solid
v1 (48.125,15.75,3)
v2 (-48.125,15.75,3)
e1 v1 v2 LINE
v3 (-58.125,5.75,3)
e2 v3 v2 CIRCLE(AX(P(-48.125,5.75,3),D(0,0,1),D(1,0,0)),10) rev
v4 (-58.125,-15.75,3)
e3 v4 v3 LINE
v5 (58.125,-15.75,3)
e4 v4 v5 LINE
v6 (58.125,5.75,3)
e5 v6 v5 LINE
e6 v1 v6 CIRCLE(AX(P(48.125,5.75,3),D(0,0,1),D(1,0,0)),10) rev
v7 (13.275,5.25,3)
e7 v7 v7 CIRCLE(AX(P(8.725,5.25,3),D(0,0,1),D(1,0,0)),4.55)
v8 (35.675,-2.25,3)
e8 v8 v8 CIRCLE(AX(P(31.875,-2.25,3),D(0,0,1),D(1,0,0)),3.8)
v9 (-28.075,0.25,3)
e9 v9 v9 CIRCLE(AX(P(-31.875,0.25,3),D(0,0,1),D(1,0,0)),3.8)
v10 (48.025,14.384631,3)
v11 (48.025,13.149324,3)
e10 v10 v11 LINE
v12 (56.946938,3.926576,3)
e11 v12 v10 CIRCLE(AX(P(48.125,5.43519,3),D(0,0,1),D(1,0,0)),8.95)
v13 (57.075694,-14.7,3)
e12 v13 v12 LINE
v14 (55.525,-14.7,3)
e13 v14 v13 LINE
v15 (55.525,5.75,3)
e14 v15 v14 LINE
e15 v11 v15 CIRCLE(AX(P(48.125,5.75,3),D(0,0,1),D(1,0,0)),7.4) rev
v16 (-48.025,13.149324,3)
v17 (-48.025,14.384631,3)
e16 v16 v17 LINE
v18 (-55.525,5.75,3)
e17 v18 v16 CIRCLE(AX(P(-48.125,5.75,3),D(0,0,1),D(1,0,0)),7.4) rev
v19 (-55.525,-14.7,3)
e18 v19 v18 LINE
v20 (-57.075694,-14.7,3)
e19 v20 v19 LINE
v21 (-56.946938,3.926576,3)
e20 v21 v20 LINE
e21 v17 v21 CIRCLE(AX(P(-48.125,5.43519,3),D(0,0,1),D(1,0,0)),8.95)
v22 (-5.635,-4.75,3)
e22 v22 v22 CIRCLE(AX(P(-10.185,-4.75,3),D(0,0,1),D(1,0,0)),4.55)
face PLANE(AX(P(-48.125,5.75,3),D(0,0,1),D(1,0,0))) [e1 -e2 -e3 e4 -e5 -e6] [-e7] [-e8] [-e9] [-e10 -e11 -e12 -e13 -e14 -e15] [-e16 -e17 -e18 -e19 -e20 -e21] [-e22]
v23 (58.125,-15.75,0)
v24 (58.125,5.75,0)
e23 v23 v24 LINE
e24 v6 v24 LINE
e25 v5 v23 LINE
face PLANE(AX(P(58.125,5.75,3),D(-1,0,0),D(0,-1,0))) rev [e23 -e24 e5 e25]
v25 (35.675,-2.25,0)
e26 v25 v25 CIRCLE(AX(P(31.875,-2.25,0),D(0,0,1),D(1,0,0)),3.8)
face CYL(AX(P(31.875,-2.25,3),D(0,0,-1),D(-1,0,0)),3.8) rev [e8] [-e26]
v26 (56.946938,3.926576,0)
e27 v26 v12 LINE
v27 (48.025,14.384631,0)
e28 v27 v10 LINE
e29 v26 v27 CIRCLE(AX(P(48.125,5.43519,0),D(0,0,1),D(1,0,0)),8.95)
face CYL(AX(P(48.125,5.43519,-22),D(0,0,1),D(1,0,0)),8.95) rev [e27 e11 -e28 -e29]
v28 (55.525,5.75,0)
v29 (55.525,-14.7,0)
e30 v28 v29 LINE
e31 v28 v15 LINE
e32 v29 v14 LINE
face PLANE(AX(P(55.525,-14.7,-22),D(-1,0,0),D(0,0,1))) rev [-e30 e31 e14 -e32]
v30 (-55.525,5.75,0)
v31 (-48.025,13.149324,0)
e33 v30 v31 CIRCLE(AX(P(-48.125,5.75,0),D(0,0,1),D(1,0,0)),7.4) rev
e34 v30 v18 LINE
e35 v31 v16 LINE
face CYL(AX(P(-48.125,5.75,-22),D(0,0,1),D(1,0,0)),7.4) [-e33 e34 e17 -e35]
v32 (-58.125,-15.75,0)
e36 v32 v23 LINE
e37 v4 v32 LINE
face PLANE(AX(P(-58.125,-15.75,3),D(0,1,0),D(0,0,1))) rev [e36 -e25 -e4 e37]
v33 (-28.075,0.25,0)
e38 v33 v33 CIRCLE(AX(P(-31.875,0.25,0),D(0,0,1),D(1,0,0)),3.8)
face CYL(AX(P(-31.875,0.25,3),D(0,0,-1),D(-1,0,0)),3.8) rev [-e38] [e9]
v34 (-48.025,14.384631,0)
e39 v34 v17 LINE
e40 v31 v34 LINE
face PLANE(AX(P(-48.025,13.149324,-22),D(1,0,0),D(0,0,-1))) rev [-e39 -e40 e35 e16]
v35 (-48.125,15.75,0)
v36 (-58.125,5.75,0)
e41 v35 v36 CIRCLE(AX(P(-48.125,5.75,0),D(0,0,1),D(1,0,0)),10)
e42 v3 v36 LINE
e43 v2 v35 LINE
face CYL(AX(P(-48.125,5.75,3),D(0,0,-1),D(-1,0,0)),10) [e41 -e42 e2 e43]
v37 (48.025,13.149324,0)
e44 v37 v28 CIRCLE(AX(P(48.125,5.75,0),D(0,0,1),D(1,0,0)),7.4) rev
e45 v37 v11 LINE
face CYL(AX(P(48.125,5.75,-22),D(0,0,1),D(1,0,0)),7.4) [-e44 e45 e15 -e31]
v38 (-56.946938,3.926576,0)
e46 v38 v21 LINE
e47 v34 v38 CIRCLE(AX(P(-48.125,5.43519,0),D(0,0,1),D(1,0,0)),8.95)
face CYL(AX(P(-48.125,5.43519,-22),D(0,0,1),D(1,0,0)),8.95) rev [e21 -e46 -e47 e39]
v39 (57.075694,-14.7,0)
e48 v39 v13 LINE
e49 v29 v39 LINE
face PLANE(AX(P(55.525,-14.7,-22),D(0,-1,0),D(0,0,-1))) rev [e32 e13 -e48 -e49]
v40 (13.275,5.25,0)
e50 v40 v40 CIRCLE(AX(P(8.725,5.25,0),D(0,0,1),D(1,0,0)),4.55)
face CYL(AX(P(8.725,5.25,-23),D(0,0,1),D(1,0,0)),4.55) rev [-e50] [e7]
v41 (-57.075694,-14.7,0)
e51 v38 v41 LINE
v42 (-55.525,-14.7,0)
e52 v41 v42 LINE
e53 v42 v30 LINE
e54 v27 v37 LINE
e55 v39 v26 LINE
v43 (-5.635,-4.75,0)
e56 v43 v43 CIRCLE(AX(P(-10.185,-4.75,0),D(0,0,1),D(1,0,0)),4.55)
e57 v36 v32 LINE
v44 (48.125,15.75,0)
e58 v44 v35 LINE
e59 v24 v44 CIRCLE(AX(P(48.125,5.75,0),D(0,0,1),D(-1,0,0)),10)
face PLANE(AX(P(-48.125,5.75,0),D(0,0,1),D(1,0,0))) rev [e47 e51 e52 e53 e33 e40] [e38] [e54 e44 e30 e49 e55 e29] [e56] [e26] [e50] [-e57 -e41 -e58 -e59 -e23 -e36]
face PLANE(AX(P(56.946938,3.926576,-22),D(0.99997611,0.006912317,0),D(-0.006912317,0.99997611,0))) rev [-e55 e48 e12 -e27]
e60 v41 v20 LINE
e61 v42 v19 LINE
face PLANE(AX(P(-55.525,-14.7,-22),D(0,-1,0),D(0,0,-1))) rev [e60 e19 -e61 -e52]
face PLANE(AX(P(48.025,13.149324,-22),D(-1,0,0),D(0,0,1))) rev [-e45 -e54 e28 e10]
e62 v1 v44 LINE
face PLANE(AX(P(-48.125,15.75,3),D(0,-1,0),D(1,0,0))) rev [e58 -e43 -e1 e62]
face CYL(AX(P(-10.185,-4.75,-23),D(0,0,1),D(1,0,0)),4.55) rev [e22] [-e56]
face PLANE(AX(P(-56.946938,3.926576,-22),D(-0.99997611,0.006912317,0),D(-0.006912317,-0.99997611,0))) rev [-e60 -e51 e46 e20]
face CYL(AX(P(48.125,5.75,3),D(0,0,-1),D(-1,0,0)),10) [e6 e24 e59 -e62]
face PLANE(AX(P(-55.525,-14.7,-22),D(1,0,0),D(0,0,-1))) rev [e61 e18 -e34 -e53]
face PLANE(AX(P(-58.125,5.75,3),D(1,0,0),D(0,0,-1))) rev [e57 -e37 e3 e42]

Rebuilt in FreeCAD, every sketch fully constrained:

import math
import FreeCAD as App
import Part
import Sketcher
Q = App.Units.Quantity

doc = App.newDocument("Part")
body = doc.addObject("PartDesign::Body", "Body")

# Sketch on XY plane
sketch1 = body.newObject("Sketcher::SketchObject", "Sketch")
sketch1.AttachmentSupport = (doc.getObject("XY_Plane"), [""])
sketch1.MapMode = "FlatFace"
sketch1.addGeometry(Part.LineSegment(App.Vector(48.125, 15.75, 0), App.Vector(-48.125, 15.75, 0)), False)
sketch1.addGeometry(Part.ArcOfCircle(Part.Circle(App.Vector(-48.125, 5.75, 0), App.Vector(0, 0, 1), 10), math.radians(90), math.radians(180)), False)
sketch1.addGeometry(Part.LineSegment(App.Vector(-58.125, 5.75, 0), App.Vector(-58.125, -15.75, 0)), False)
sketch1.addGeometry(Part.LineSegment(App.Vector(-58.125, -15.75, 0), App.Vector(58.125, -15.75, 0)), False)
sketch1.addGeometry(Part.LineSegment(App.Vector(58.125, -15.75, 0), App.Vector(58.125, 5.75, 0)), False)
sketch1.addGeometry(Part.ArcOfCircle(Part.Circle(App.Vector(48.125, 5.75, 0), App.Vector(0, 0, 1), 10), math.radians(0), math.radians(90)), False)
sketch1.addGeometry(Part.Circle(App.Vector(31.875, -2.25, 0), App.Vector(0, 0, 1), 3.8), False)
sketch1.addGeometry(Part.Circle(App.Vector(-31.875, 0.25, 0), App.Vector(0, 0, 1), 3.8), False)
sketch1.addConstraint(Sketcher.Constraint("Tangent", 0, 2, 1, 1))
sketch1.addConstraint(Sketcher.Constraint("Tangent", 1, 2, 2, 1))
sketch1.addConstraint(Sketcher.Constraint("Coincident", 2, 2, 3, 1))
sketch1.addConstraint(Sketcher.Constraint("Coincident", 3, 2, 4, 1))
sketch1.addConstraint(Sketcher.Constraint("Tangent", 4, 2, 5, 1))
sketch1.addConstraint(Sketcher.Constraint("Tangent", 5, 2, 0, 1))
sketch1.addConstraint(Sketcher.Constraint("Horizontal", 0))
sketch1.addConstraint(Sketcher.Constraint("Vertical", 2))
sketch1.addConstraint(Sketcher.Constraint("Horizontal", 3))
sketch1.addConstraint(Sketcher.Constraint("Vertical", 4))
sketch1.addConstraint(Sketcher.Constraint("Equal", 1, 5))
sketch1.addConstraint(Sketcher.Constraint("Equal", 6, 7))
sketch1.addConstraint(Sketcher.Constraint("Radius", 1, Q("10 mm")))
sketch1.addConstraint(Sketcher.Constraint("Diameter", 6, Q("7.6 mm")))
sketch1.addConstraint(Sketcher.Constraint("DistanceY", 2, 2, 2, 1, Q("21.5 mm")))
sketch1.addConstraint(Sketcher.Constraint("DistanceY", 6, 3, 5, 3, Q("8 mm")))
sketch1.addConstraint(Sketcher.Constraint("DistanceX", 1, 3, 6, 3, Q("80 mm")))
sketch1.addConstraint(Sketcher.Constraint("DistanceX", 7, 3, 5, 3, Q("80 mm")))
sketch1.addConstraint(Sketcher.Constraint("DistanceY", 2, 2, 7, 3, Q("16 mm")))
sketch1.addConstraint(Sketcher.Constraint("DistanceX", 0, 2, 0, 1, Q("96.25 mm")))
sketch1.addConstraint(Sketcher.Constraint("DistanceY", -1, 1, 1, 3, Q("5.75 mm")))
sketch1.addConstraint(Sketcher.Constraint("DistanceX", 1, 3, -1, 1, Q("48.125 mm")))
pad1 = body.newObject("PartDesign::Pad", "Pad")
pad1.Profile = sketch1
pad1.Length = 3

# Sketch on XY plane
sketch2 = body.newObject("Sketcher::SketchObject", "Sketch001")
sketch2.AttachmentSupport = (doc.getObject("XY_Plane"), [""])
sketch2.MapMode = "FlatFace"
sketch2.AttachmentOffset = App.Placement(App.Vector(0, 0, 3), App.Rotation())
sketch2.addGeometry(Part.Circle(App.Vector(8.725, 5.25, 0), App.Vector(0, 0, 1), 4.4), False)
sketch2.addGeometry(Part.Circle(App.Vector(-10.185, -4.75, 0), App.Vector(0, 0, 1), 4.4), False)
sketch2.addGeometry(Part.LineSegment(App.Vector(55.625, 5.75, 0), App.Vector(55.625, -15.75, 0)), False)
sketch2.addGeometry(Part.LineSegment(App.Vector(55.625, -15.75, 0), App.Vector(58.125, -15.75, 0)), False)
sketch2.addGeometry(Part.LineSegment(App.Vector(58.125, -15.75, 0), App.Vector(58.125, 5.75, 0)), False)
sketch2.addGeometry(Part.ArcOfCircle(Part.Circle(App.Vector(48.125, 5.75, 0), App.Vector(0, 0, 1), 10), math.radians(0), math.radians(90)), False)
sketch2.addGeometry(Part.LineSegment(App.Vector(48.125, 15.75, 0), App.Vector(48.125, 13.25, 0)), False)
sketch2.addGeometry(Part.ArcOfCircle(Part.Circle(App.Vector(48.125, 5.75, 0), App.Vector(0, 0, 1), 7.5), math.radians(0), math.radians(90)), False)
sketch2.addGeometry(Part.LineSegment(App.Vector(-58.125, -15.75, 0), App.Vector(-55.625, -15.75, 0)), False)
sketch2.addGeometry(Part.LineSegment(App.Vector(-55.625, -15.75, 0), App.Vector(-55.625, 5.75, 0)), False)
sketch2.addGeometry(Part.ArcOfCircle(Part.Circle(App.Vector(-48.125, 5.75, 0), App.Vector(0, 0, 1), 7.5), math.radians(90), math.radians(180)), False)
sketch2.addGeometry(Part.LineSegment(App.Vector(-48.125, 13.25, 0), App.Vector(-48.125, 15.75, 0)), False)
sketch2.addGeometry(Part.ArcOfCircle(Part.Circle(App.Vector(-48.125, 5.75, 0), App.Vector(0, 0, 1), 10), math.radians(90), math.radians(180)), False)
sketch2.addGeometry(Part.LineSegment(App.Vector(-58.125, 5.75, 0), App.Vector(-58.125, -15.75, 0)), False)
sketch2.addConstraint(Sketcher.Constraint("Coincident", 2, 2, 3, 1))
sketch2.addConstraint(Sketcher.Constraint("Coincident", 3, 2, 4, 1))
sketch2.addConstraint(Sketcher.Constraint("Tangent", 4, 2, 5, 1))
sketch2.addConstraint(Sketcher.Constraint("Coincident", 5, 2, 6, 1))
sketch2.addConstraint(Sketcher.Constraint("Coincident", 6, 2, 7, 2))
sketch2.addConstraint(Sketcher.Constraint("Tangent", 7, 1, 2, 1))
sketch2.addConstraint(Sketcher.Constraint("Coincident", 8, 2, 9, 1))
sketch2.addConstraint(Sketcher.Constraint("Tangent", 9, 2, 10, 2))
sketch2.addConstraint(Sketcher.Constraint("Coincident", 10, 1, 11, 1))
sketch2.addConstraint(Sketcher.Constraint("Coincident", 11, 2, 12, 1))
sketch2.addConstraint(Sketcher.Constraint("Tangent", 12, 2, 13, 1))
sketch2.addConstraint(Sketcher.Constraint("Coincident", 13, 2, 8, 1))
sketch2.addConstraint(Sketcher.Constraint("Vertical", 2))
sketch2.addConstraint(Sketcher.Constraint("Horizontal", 3))
sketch2.addConstraint(Sketcher.Constraint("Vertical", 4))
sketch2.addConstraint(Sketcher.Constraint("Vertical", 6))
sketch2.addConstraint(Sketcher.Constraint("Horizontal", 8))
sketch2.addConstraint(Sketcher.Constraint("Vertical", 9))
sketch2.addConstraint(Sketcher.Constraint("Vertical", 11))
sketch2.addConstraint(Sketcher.Constraint("Vertical", 13))
sketch2.addConstraint(Sketcher.Constraint("Coincident", 7, 3, 5, 3))
sketch2.addConstraint(Sketcher.Constraint("Coincident", 12, 3, 10, 3))
sketch2.addConstraint(Sketcher.Constraint("Equal", 0, 1))
sketch2.addConstraint(Sketcher.Constraint("Equal", 7, 10))
sketch2.addConstraint(Sketcher.Constraint("Equal", 5, 12))
sketch2.addConstraint(Sketcher.Constraint("Symmetric", 5, 3, 10, 3, -2))
sketch2.addConstraint(Sketcher.Constraint("Horizontal", 3, 2, 8, 2))
sketch2.addConstraint(Sketcher.Constraint("Vertical", 7, 3, 5, 2))
sketch2.addConstraint(Sketcher.Constraint("Vertical", 12, 3, 10, 1))
sketch2.addConstraint(Sketcher.Constraint("Radius", 5, Q("10 mm")))
sketch2.addConstraint(Sketcher.Constraint("Diameter", 0, Q("8.8 mm")))
sketch2.addConstraint(Sketcher.Constraint("Radius", 7, Q("7.5 mm")))
sketch2.addConstraint(Sketcher.Constraint("DistanceY", 2, 2, 2, 1, Q("21.5 mm")))
sketch2.addConstraint(Sketcher.Constraint("DistanceY", 1, 3, 0, 3, Q("10 mm")))
sketch2.addConstraint(Sketcher.Constraint("DistanceY", 2, 2, 0, 3, Q("21 mm")))
sketch2.addConstraint(Sketcher.Constraint("DistanceX", 0, 3, 5, 3, Q("39.4 mm")))
sketch2.addConstraint(Sketcher.Constraint("DistanceY", -1, 1, 0, 3, Q("5.25 mm")))
sketch2.addConstraint(Sketcher.Constraint("DistanceX", 1, 3, 0, 3, Q("18.91 mm")))
sketch2.addConstraint(Sketcher.Constraint("DistanceX", 10, 3, 1, 3, Q("37.94 mm")))
pad2 = body.newObject("PartDesign::Pad", "Pad001")
pad2.Profile = sketch2
pad2.Length = 25

# Sketch on XY plane
sketch3 = body.newObject("Sketcher::SketchObject", "Sketch002")
sketch3.AttachmentSupport = (doc.getObject("XY_Plane"), [""])
sketch3.MapMode = "FlatFace"
sketch3.AttachmentOffset = App.Placement(App.Vector(0, 0, 27), App.Rotation())
sketch3.addGeometry(Part.Circle(App.Vector(8.725, 5.25, 0), App.Vector(0, 0, 1), 4.4), False)
sketch3.addGeometry(Part.Circle(App.Vector(-10.185, -4.75, 0), App.Vector(0, 0, 1), 4.4), False)
sketch3.addConstraint(Sketcher.Constraint("Equal", 0, 1))
sketch3.addConstraint(Sketcher.Constraint("Diameter", 0, Q("8.8 mm")))
sketch3.addConstraint(Sketcher.Constraint("DistanceY", 1, 3, 0, 3, Q("10 mm")))
sketch3.addConstraint(Sketcher.Constraint("DistanceY", -1, 1, 0, 3, Q("5.25 mm")))
sketch3.addConstraint(Sketcher.Constraint("DistanceX", 1, 3, 0, 3, Q("18.91 mm")))
sketch3.addConstraint(Sketcher.Constraint("DistanceX", -1, 1, 0, 3, Q("8.725 mm")))
pocket1 = body.newObject("PartDesign::Pocket", "Pocket")
pocket1.Profile = sketch3
pocket1.Length = 1
pocket1.Reversed = True

# Sketch on XY plane
sketch4 = body.newObject("Sketcher::SketchObject", "Sketch003")
sketch4.AttachmentSupport = (doc.getObject("XY_Plane"), [""])
sketch4.MapMode = "FlatFace"
sketch4.AttachmentOffset = App.Placement(App.Vector(0, 0, 28), App.Rotation())
sketch4.addGeometry(Part.LineSegment(App.Vector(55.525, 5.75, 0), App.Vector(55.525, -14.7, 0)), False)
sketch4.addGeometry(Part.LineSegment(App.Vector(55.525, -14.7, 0), App.Vector(57.075694, -14.7, 0)), False)
sketch4.addGeometry(Part.LineSegment(App.Vector(57.075694, -14.7, 0), App.Vector(56.946938, 3.926576, 0)), False)
sketch4.addGeometry(Part.ArcOfCircle(Part.Circle(App.Vector(48.125, 5.43519, 0), App.Vector(0, 0, 1), 8.95), math.radians(-9.704114), math.radians(90.64019)), False)
sketch4.addGeometry(Part.LineSegment(App.Vector(48.025, 14.384631, 0), App.Vector(48.025, 13.149324, 0)), False)
sketch4.addGeometry(Part.ArcOfCircle(Part.Circle(App.Vector(48.125, 5.75, 0), App.Vector(0, 0, 1), 7.4), math.radians(0), math.radians(90.774291)), False)
sketch4.addGeometry(Part.LineSegment(App.Vector(-56.946938, 3.926576, 0), App.Vector(-57.075694, -14.7, 0)), False)
sketch4.addGeometry(Part.LineSegment(App.Vector(-57.075694, -14.7, 0), App.Vector(-55.525, -14.7, 0)), False)
sketch4.addGeometry(Part.LineSegment(App.Vector(-55.525, -14.7, 0), App.Vector(-55.525, 5.75, 0)), False)
sketch4.addGeometry(Part.ArcOfCircle(Part.Circle(App.Vector(-48.125, 5.75, 0), App.Vector(0, 0, 1), 7.4), math.radians(89.225709), math.radians(180)), False)
sketch4.addGeometry(Part.LineSegment(App.Vector(-48.025, 13.149324, 0), App.Vector(-48.025, 14.384631, 0)), False)
sketch4.addGeometry(Part.ArcOfCircle(Part.Circle(App.Vector(-48.125, 5.43519, 0), App.Vector(0, 0, 1), 8.95), math.radians(89.35981), math.radians(189.704114)), False)
sketch4.addConstraint(Sketcher.Constraint("Coincident", 0, 2, 1, 1))
sketch4.addConstraint(Sketcher.Constraint("Coincident", 1, 2, 2, 1))
sketch4.addConstraint(Sketcher.Constraint("Coincident", 2, 2, 3, 1))
sketch4.addConstraint(Sketcher.Constraint("Coincident", 3, 2, 4, 1))
sketch4.addConstraint(Sketcher.Constraint("Coincident", 4, 2, 5, 2))
sketch4.addConstraint(Sketcher.Constraint("Tangent", 5, 1, 0, 1))
sketch4.addConstraint(Sketcher.Constraint("Coincident", 6, 2, 7, 1))
sketch4.addConstraint(Sketcher.Constraint("Coincident", 7, 2, 8, 1))
sketch4.addConstraint(Sketcher.Constraint("Tangent", 8, 2, 9, 2))
sketch4.addConstraint(Sketcher.Constraint("Coincident", 9, 1, 10, 1))
sketch4.addConstraint(Sketcher.Constraint("Coincident", 10, 2, 11, 1))
sketch4.addConstraint(Sketcher.Constraint("Coincident", 11, 2, 6, 1))
sketch4.addConstraint(Sketcher.Constraint("Vertical", 0))
sketch4.addConstraint(Sketcher.Constraint("Horizontal", 1))
sketch4.addConstraint(Sketcher.Constraint("Vertical", 4))
sketch4.addConstraint(Sketcher.Constraint("Horizontal", 7))
sketch4.addConstraint(Sketcher.Constraint("Vertical", 8))
sketch4.addConstraint(Sketcher.Constraint("Vertical", 10))
sketch4.addConstraint(Sketcher.Constraint("Equal", 5, 9))
sketch4.addConstraint(Sketcher.Constraint("Equal", 3, 11))
sketch4.addConstraint(Sketcher.Constraint("Symmetric", 5, 3, 9, 3, -2))
sketch4.addConstraint(Sketcher.Constraint("Symmetric", 3, 3, 11, 3, -2))
sketch4.addConstraint(Sketcher.Constraint("Symmetric", 1, 2, 6, 2, -2))
sketch4.addConstraint(Sketcher.Constraint("Horizontal", 4, 2, 9, 1))
sketch4.addConstraint(Sketcher.Constraint("Horizontal", 2, 2, 11, 2))
sketch4.addConstraint(Sketcher.Constraint("Vertical", 3, 3, 5, 3))
sketch4.addConstraint(Sketcher.Constraint("Radius", 5, Q("7.4 mm")))
sketch4.addConstraint(Sketcher.Constraint("Radius", 3, Q("8.95 mm")))
sketch4.addConstraint(Sketcher.Constraint("DistanceY", 0, 2, 0, 1, Q("20.45 mm")))
sketch4.addConstraint(Sketcher.Constraint("DistanceY", 0, 2, -1, 1, Q("14.7 mm")))
sketch4.addConstraint(Sketcher.Constraint("DistanceX", 3, 2, 5, 3, Q("0.1 mm")))
sketch4.addConstraint(Sketcher.Constraint("DistanceX", 9, 3, 5, 3, Q("96.25 mm")))
sketch4.addConstraint(Sketcher.Constraint("Distance", 2, Q("18.627021 mm")))
sketch4.addConstraint(Sketcher.Constraint("DistanceX", 1, 1, 1, 2, Q("1.550694 mm")))
sketch4.addConstraint(Sketcher.Constraint("DistanceY", 4, 2, 4, 1, Q("1.235307 mm")))
pocket2 = body.newObject("PartDesign::Pocket", "Pocket001")
pocket2.Profile = sketch4
pocket2.Length = 50

# Sketch on XY plane
sketch5 = body.newObject("Sketcher::SketchObject", "Sketch004")
sketch5.AttachmentSupport = (doc.getObject("XY_Plane"), [""])
sketch5.MapMode = "FlatFace"
sketch5.AttachmentOffset = App.Placement(App.Vector(0, 0, 27), App.Rotation())
sketch5.addGeometry(Part.Circle(App.Vector(-10.185, -4.75, 0), App.Vector(0, 0, 1), 4.55), False)
sketch5.addGeometry(Part.Circle(App.Vector(8.725, 5.25, 0), App.Vector(0, 0, 1), 4.55), False)
sketch5.addConstraint(Sketcher.Constraint("Equal", 0, 1))
sketch5.addConstraint(Sketcher.Constraint("Diameter", 0, Q("9.1 mm")))
sketch5.addConstraint(Sketcher.Constraint("DistanceY", 0, 3, 1, 3, Q("10 mm")))
sketch5.addConstraint(Sketcher.Constraint("DistanceY", 0, 3, -1, 1, Q("4.75 mm")))
sketch5.addConstraint(Sketcher.Constraint("DistanceX", 0, 3, 1, 3, Q("18.91 mm")))
sketch5.addConstraint(Sketcher.Constraint("DistanceX", 0, 3, -1, 1, Q("10.185 mm")))
pocket3 = body.newObject("PartDesign::Pocket", "Pocket002")
pocket3.Profile = sketch5
pocket3.Length = 50

# Sketch on XY plane
sketch6 = body.newObject("Sketcher::SketchObject", "Sketch005")
sketch6.AttachmentSupport = (doc.getObject("XY_Plane"), [""])
sketch6.MapMode = "FlatFace"
sketch6.AttachmentOffset = App.Placement(App.Vector(0, 0, 28), App.Rotation())
sketch6.addGeometry(Part.LineSegment(App.Vector(57.075694, -14.7, 0), App.Vector(55.625, -14.7, 0)), False)
sketch6.addGeometry(Part.LineSegment(App.Vector(55.625, -14.7, 0), App.Vector(55.625, -15.75, 0)), False)
sketch6.addGeometry(Part.LineSegment(App.Vector(55.625, -15.75, 0), App.Vector(58.125, -15.75, 0)), False)
sketch6.addGeometry(Part.LineSegment(App.Vector(58.125, -15.75, 0), App.Vector(58.125, 5.75, 0)), False)
sketch6.addGeometry(Part.ArcOfCircle(Part.Circle(App.Vector(48.125, 5.75, 0), App.Vector(0, 0, 1), 10), math.radians(0), math.radians(90)), False)
sketch6.addGeometry(Part.LineSegment(App.Vector(48.125, 15.75, 0), App.Vector(48.125, 14.38519, 0)), False)
sketch6.addGeometry(Part.ArcOfCircle(Part.Circle(App.Vector(48.125, 5.43519, 0), App.Vector(0, 0, 1), 8.95), math.radians(-9.704114), math.radians(90)), False)
sketch6.addGeometry(Part.LineSegment(App.Vector(56.946938, 3.926576, 0), App.Vector(57.075694, -14.7, 0)), False)
sketch6.addGeometry(Part.LineSegment(App.Vector(-48.125, 14.38519, 0), App.Vector(-48.125, 15.75, 0)), False)
sketch6.addGeometry(Part.ArcOfCircle(Part.Circle(App.Vector(-48.125, 5.75, 0), App.Vector(0, 0, 1), 10), math.radians(90), math.radians(180)), False)
sketch6.addGeometry(Part.LineSegment(App.Vector(-58.125, 5.75, 0), App.Vector(-58.125, -15.75, 0)), False)
sketch6.addGeometry(Part.LineSegment(App.Vector(-58.125, -15.75, 0), App.Vector(-55.625, -15.75, 0)), False)
sketch6.addGeometry(Part.LineSegment(App.Vector(-55.625, -15.75, 0), App.Vector(-55.625, -14.7, 0)), False)
sketch6.addGeometry(Part.LineSegment(App.Vector(-55.625, -14.7, 0), App.Vector(-57.075694, -14.7, 0)), False)
sketch6.addGeometry(Part.LineSegment(App.Vector(-57.075694, -14.7, 0), App.Vector(-56.946938, 3.926576, 0)), False)
sketch6.addGeometry(Part.ArcOfCircle(Part.Circle(App.Vector(-48.125, 5.43519, 0), App.Vector(0, 0, 1), 8.95), math.radians(90), math.radians(189.704114)), False)
sketch6.addConstraint(Sketcher.Constraint("Coincident", 0, 2, 1, 1))
sketch6.addConstraint(Sketcher.Constraint("Coincident", 1, 2, 2, 1))
sketch6.addConstraint(Sketcher.Constraint("Coincident", 2, 2, 3, 1))
sketch6.addConstraint(Sketcher.Constraint("Tangent", 3, 2, 4, 1))
sketch6.addConstraint(Sketcher.Constraint("Coincident", 4, 2, 5, 1))
sketch6.addConstraint(Sketcher.Constraint("Coincident", 5, 2, 6, 2))
sketch6.addConstraint(Sketcher.Constraint("Coincident", 6, 1, 7, 1))
sketch6.addConstraint(Sketcher.Constraint("Coincident", 7, 2, 0, 1))
sketch6.addConstraint(Sketcher.Constraint("Coincident", 8, 2, 9, 1))
sketch6.addConstraint(Sketcher.Constraint("Tangent", 9, 2, 10, 1))
sketch6.addConstraint(Sketcher.Constraint("Coincident", 10, 2, 11, 1))
sketch6.addConstraint(Sketcher.Constraint("Coincident", 11, 2, 12, 1))
sketch6.addConstraint(Sketcher.Constraint("Coincident", 12, 2, 13, 1))
sketch6.addConstraint(Sketcher.Constraint("Coincident", 13, 2, 14, 1))
sketch6.addConstraint(Sketcher.Constraint("Coincident", 14, 2, 15, 2))
sketch6.addConstraint(Sketcher.Constraint("Coincident", 15, 1, 8, 1))
sketch6.addConstraint(Sketcher.Constraint("Horizontal", 0))
sketch6.addConstraint(Sketcher.Constraint("Vertical", 1))
sketch6.addConstraint(Sketcher.Constraint("Horizontal", 2))
sketch6.addConstraint(Sketcher.Constraint("Vertical", 3))
sketch6.addConstraint(Sketcher.Constraint("Vertical", 5))
sketch6.addConstraint(Sketcher.Constraint("Vertical", 8))
sketch6.addConstraint(Sketcher.Constraint("Vertical", 10))
sketch6.addConstraint(Sketcher.Constraint("Horizontal", 11))
sketch6.addConstraint(Sketcher.Constraint("Vertical", 12))
sketch6.addConstraint(Sketcher.Constraint("Horizontal", 13))
sketch6.addConstraint(Sketcher.Constraint("Equal", 4, 9))
sketch6.addConstraint(Sketcher.Constraint("Equal", 6, 15))
sketch6.addConstraint(Sketcher.Constraint("Symmetric", 4, 3, 9, 3, -2))
sketch6.addConstraint(Sketcher.Constraint("Symmetric", 6, 3, 15, 3, -2))
sketch6.addConstraint(Sketcher.Constraint("Symmetric", 1, 2, 11, 2, -2))
sketch6.addConstraint(Sketcher.Constraint("Symmetric", 7, 2, 13, 2, -2))
sketch6.addConstraint(Sketcher.Constraint("Horizontal", 6, 1, 14, 2))
sketch6.addConstraint(Sketcher.Constraint("Vertical", 4, 3, 6, 3))
sketch6.addConstraint(Sketcher.Constraint("Vertical", 6, 3, 4, 2))
sketch6.addConstraint(Sketcher.Constraint("Vertical", 15, 3, 8, 2))
sketch6.addConstraint(Sketcher.Constraint("Radius", 4, Q("10 mm")))
sketch6.addConstraint(Sketcher.Constraint("Radius", 6, Q("8.95 mm")))
sketch6.addConstraint(Sketcher.Constraint("DistanceX", 2, 1, 2, 2, Q("2.5 mm")))
sketch6.addConstraint(Sketcher.Constraint("DistanceY", 3, 1, 3, 2, Q("21.5 mm")))
sketch6.addConstraint(Sketcher.Constraint("DistanceY", 1, 2, 1, 1, Q("1.05 mm")))
sketch6.addConstraint(Sketcher.Constraint("DistanceY", 0, 2, -1, 1, Q("14.7 mm")))
sketch6.addConstraint(Sketcher.Constraint("DistanceX", 9, 3, 4, 3, Q("96.25 mm")))
sketch6.addConstraint(Sketcher.Constraint("DistanceY", 5, 2, 5, 1, Q("1.36481 mm")))
sketch6.addConstraint(Sketcher.Constraint("Distance", 7, Q("18.627021 mm")))
sketch6.addConstraint(Sketcher.Constraint("DistanceX", 0, 2, 0, 1, Q("1.450694 mm")))
pocket4 = body.newObject("PartDesign::Pocket", "Pocket003")
pocket4.Profile = sketch6
pocket4.Length = 25

doc.recompute()
